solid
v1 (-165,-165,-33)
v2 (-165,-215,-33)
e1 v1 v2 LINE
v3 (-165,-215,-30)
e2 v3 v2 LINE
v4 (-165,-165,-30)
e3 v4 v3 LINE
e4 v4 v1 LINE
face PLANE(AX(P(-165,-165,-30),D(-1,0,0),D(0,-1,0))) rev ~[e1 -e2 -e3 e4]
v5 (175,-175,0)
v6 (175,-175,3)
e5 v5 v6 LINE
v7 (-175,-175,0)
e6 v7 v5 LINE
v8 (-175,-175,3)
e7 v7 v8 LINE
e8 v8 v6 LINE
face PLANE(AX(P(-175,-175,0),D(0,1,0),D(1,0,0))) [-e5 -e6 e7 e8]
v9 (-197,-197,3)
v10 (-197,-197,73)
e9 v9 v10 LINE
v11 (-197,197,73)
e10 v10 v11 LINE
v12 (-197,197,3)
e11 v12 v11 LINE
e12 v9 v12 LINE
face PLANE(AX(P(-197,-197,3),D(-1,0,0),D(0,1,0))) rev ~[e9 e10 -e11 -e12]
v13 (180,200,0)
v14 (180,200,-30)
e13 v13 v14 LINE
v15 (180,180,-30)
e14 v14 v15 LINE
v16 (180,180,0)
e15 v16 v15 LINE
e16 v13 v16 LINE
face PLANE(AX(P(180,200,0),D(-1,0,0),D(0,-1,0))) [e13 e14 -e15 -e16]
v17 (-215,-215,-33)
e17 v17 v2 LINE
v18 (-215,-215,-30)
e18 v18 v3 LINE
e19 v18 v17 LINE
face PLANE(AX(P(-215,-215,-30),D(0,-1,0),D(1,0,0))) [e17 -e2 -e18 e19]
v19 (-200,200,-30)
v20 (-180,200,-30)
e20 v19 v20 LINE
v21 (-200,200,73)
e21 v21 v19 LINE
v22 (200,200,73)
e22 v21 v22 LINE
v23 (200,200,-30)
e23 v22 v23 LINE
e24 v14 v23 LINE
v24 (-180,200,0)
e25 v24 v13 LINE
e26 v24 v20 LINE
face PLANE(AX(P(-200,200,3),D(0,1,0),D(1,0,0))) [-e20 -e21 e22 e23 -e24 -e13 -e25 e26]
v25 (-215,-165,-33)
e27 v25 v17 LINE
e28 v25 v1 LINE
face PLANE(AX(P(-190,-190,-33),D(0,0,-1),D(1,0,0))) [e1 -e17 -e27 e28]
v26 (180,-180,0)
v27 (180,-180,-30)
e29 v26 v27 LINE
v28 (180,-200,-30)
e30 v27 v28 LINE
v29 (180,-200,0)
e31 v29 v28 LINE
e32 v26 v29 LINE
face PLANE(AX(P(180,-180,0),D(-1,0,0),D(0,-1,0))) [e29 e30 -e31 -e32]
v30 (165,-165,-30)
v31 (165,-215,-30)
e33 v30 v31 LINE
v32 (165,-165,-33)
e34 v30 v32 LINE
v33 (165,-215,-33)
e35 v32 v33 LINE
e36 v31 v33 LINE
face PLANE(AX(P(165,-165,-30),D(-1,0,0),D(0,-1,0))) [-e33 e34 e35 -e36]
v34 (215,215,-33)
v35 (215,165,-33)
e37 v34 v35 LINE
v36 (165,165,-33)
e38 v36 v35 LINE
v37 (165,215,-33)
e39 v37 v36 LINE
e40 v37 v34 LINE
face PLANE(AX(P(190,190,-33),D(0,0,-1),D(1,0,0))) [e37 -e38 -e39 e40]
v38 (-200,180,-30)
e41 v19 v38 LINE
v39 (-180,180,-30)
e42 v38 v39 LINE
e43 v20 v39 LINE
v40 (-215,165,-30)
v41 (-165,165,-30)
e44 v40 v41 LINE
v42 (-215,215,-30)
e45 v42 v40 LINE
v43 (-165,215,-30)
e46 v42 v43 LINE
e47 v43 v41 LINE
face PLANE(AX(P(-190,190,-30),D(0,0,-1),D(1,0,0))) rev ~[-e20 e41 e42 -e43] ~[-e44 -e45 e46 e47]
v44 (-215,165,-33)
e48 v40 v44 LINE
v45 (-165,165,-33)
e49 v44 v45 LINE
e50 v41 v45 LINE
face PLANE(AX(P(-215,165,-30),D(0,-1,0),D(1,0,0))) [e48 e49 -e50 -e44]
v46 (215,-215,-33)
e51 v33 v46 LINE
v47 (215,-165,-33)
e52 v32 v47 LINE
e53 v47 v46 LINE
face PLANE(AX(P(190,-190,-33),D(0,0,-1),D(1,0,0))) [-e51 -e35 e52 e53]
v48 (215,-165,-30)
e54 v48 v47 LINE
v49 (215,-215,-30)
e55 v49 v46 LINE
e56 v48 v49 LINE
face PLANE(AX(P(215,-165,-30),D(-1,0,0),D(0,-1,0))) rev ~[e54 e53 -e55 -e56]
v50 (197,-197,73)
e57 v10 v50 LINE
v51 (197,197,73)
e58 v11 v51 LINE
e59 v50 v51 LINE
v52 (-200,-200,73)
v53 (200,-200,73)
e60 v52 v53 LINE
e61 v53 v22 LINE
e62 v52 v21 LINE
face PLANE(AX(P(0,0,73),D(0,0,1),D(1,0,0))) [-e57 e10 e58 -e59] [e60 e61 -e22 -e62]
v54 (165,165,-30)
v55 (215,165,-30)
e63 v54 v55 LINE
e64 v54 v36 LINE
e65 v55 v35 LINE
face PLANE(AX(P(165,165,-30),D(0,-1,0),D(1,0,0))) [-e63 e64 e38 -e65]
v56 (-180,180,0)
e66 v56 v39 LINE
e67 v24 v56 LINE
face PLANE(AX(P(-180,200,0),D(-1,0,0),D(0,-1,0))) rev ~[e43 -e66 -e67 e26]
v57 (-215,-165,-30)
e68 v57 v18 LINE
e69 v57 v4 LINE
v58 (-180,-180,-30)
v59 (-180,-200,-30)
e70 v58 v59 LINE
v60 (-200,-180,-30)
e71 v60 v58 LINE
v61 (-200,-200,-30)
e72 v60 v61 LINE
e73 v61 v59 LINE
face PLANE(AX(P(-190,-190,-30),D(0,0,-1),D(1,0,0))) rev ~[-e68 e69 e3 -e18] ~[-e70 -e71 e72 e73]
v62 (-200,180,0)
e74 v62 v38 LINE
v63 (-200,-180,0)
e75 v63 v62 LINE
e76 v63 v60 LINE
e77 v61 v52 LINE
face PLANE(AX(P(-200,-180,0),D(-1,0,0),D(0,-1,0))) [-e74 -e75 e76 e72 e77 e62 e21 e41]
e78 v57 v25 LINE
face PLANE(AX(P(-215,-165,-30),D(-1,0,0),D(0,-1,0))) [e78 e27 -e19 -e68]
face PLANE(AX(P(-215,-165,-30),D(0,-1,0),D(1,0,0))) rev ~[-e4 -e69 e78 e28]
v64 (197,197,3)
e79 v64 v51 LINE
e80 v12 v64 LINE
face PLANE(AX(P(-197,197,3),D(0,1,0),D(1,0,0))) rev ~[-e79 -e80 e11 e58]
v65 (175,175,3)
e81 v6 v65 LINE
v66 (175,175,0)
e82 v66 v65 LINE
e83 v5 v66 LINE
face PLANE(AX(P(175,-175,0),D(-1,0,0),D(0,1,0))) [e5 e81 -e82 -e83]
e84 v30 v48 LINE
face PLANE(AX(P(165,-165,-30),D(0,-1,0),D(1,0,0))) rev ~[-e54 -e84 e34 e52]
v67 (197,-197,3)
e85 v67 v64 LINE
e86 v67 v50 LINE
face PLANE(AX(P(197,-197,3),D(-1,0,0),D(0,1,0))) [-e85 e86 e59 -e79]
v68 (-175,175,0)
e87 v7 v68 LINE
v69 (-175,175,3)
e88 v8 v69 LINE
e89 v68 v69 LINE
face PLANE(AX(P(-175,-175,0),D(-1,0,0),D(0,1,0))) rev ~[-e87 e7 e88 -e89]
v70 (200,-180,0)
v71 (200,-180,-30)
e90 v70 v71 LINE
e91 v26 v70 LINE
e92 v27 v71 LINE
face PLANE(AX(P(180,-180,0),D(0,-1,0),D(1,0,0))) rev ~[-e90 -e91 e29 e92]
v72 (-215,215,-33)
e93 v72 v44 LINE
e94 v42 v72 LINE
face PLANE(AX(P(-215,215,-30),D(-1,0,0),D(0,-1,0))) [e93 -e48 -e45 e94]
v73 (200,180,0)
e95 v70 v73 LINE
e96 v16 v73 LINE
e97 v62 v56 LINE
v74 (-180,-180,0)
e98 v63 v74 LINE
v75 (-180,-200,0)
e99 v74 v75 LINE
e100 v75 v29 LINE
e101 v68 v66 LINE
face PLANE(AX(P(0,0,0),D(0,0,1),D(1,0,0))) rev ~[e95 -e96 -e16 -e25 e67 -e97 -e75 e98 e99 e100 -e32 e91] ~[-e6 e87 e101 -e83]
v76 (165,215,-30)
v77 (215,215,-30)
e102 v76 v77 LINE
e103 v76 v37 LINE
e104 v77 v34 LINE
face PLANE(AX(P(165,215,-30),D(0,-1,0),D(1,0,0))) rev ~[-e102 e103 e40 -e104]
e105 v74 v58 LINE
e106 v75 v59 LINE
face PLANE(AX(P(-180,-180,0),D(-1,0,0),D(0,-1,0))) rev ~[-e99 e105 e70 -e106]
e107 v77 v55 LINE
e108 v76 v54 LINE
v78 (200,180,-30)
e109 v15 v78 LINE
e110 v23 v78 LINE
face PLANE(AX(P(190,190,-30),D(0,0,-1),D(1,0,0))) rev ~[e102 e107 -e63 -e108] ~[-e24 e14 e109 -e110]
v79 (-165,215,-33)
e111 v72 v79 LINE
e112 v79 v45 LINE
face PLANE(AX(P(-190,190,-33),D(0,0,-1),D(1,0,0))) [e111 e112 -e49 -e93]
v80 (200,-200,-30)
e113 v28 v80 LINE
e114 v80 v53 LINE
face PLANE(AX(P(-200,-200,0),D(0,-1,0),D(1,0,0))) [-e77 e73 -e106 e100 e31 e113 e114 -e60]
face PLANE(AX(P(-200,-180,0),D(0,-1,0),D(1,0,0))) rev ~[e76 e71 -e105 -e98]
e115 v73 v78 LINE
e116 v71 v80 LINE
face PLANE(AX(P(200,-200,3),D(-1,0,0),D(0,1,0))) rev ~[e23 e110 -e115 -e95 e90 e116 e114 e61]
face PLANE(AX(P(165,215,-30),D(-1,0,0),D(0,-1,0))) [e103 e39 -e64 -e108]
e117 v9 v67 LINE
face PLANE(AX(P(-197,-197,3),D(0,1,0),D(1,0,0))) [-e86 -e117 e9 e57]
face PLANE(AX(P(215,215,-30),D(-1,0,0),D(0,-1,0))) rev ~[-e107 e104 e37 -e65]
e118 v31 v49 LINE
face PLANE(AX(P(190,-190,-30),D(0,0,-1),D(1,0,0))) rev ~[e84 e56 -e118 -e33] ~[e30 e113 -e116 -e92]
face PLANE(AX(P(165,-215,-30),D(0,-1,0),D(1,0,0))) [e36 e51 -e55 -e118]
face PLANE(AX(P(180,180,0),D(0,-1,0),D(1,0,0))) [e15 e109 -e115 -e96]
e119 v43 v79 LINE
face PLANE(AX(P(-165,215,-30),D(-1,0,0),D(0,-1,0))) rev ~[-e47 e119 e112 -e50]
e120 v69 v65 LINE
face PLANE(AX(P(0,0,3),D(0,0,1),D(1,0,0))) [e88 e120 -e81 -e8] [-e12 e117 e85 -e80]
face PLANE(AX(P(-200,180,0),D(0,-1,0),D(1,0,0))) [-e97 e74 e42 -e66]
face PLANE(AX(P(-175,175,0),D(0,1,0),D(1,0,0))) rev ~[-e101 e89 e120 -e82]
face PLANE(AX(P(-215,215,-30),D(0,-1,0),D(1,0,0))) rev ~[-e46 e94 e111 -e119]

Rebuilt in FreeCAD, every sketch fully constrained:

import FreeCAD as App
import Part
import Sketcher

doc = App.newDocument("Part")
body = doc.addObject("PartDesign::Body", "Body")

# Sketch on XY plane
sketch1 = body.newObject("Sketcher::SketchObject", "Sketch")
sketch1.AttachmentSupport = (doc.getObject("XY_Plane"), [""])
sketch1.MapMode = "FlatFace"
sketch1.addGeometry([
    Part.LineSegment(App.Vector(-200, 200, 0), App.Vector(-200, -200, 0)),  # 0
    Part.LineSegment(App.Vector(-200, -200, 0), App.Vector(200, -200, 0)),  # 1
    Part.LineSegment(App.Vector(200, -200, 0), App.Vector(200, 200, 0)),  # 2
    Part.LineSegment(App.Vector(200, 200, 0), App.Vector(-200, 200, 0)),  # 3
    Part.LineSegment(App.Vector(175, -175, 0), App.Vector(-175, -175, 0)),  # 4
    Part.LineSegment(App.Vector(-175, -175, 0), App.Vector(-175, 175, 0)),  # 5
    Part.LineSegment(App.Vector(-175, 175, 0), App.Vector(175, 175, 0)),  # 6
    Part.LineSegment(App.Vector(175, 175, 0), App.Vector(175, -175, 0)),  # 7
], False)
sketch1.addConstraint([
    Sketcher.Constraint("Coincident", 0, 2, 1, 1),
    Sketcher.Constraint("Coincident", 1, 2, 2, 1),
    Sketcher.Constraint("Coincident", 2, 2, 3, 1),
    Sketcher.Constraint("Coincident", 3, 2, 0, 1),
    Sketcher.Constraint("Coincident", 4, 2, 5, 1),
    Sketcher.Constraint("Coincident", 5, 2, 6, 1),
    Sketcher.Constraint("Coincident", 6, 2, 7, 1),
    Sketcher.Constraint("Coincident", 7, 2, 4, 1),
    Sketcher.Constraint("Vertical", 0),
    Sketcher.Constraint("Horizontal", 1),
    Sketcher.Constraint("Vertical", 2),
    Sketcher.Constraint("Horizontal", 3),
    Sketcher.Constraint("Horizontal", 4),
    Sketcher.Constraint("Vertical", 5),
    Sketcher.Constraint("Horizontal", 6),
    Sketcher.Constraint("Vertical", 7),
    Sketcher.Constraint("Symmetric", 0, 2, 2, 2, -1, 1),
    Sketcher.Constraint("Symmetric", 4, 2, 6, 2, -1, 1),
    Sketcher.Constraint("Equal", 3, 0),
    Sketcher.Constraint("Equal", 6, 5),
    Sketcher.Constraint("DistanceX", 1, 1, 1, 2, 400.0),
    Sketcher.Constraint("DistanceX", 4, 2, 4, 1, 350.0),
])
pad1 = body.newObject("PartDesign::Pad", "Pad")
pad1.Profile = sketch1
pad1.Length = 3

# Sketch on XY plane
sketch2 = body.newObject("Sketcher::SketchObject", "Sketch001")
sketch2.AttachmentSupport = (doc.getObject("XY_Plane"), [""])
sketch2.MapMode = "FlatFace"
sketch2.AttachmentOffset = App.Placement(App.Vector(0, 0, 3), App.Rotation())
sketch2.addGeometry([
    Part.LineSegment(App.Vector(-200, 200, 0), App.Vector(-200, -200, 0)),  # 0
    Part.LineSegment(App.Vector(-200, -200, 0), App.Vector(200, -200, 0)),  # 1
    Part.LineSegment(App.Vector(200, -200, 0), App.Vector(200, 200, 0)),  # 2
    Part.LineSegment(App.Vector(200, 200, 0), App.Vector(-200, 200, 0)),  # 3
    Part.LineSegment(App.Vector(197, -197, 0), App.Vector(-197, -197, 0)),  # 4
    Part.LineSegment(App.Vector(-197, -197, 0), App.Vector(-197, 197, 0)),  # 5
    Part.LineSegment(App.Vector(-197, 197, 0), App.Vector(197, 197, 0)),  # 6
    Part.LineSegment(App.Vector(197, 197, 0), App.Vector(197, -197, 0)),  # 7
], False)
sketch2.addConstraint([
    Sketcher.Constraint("Coincident", 0, 2, 1, 1),
    Sketcher.Constraint("Coincident", 1, 2, 2, 1),
    Sketcher.Constraint("Coincident", 2, 2, 3, 1),
    Sketcher.Constraint("Coincident", 3, 2, 0, 1),
    Sketcher.Constraint("Coincident", 4, 2, 5, 1),
    Sketcher.Constraint("Coincident", 5, 2, 6, 1),
    Sketcher.Constraint("Coincident", 6, 2, 7, 1),
    Sketcher.Constraint("Coincident", 7, 2, 4, 1),
    Sketcher.Constraint("Vertical", 0),
    Sketcher.Constraint("Horizontal", 1),
    Sketcher.Constraint("Vertical", 2),
    Sketcher.Constraint("Horizontal", 3),
    Sketcher.Constraint("Horizontal", 4),
    Sketcher.Constraint("Vertical", 5),
    Sketcher.Constraint("Horizontal", 6),
    Sketcher.Constraint("Vertical", 7),
    Sketcher.Constraint("Symmetric", 0, 2, 2, 2, -1, 1),
    Sketcher.Constraint("Symmetric", 4, 2, 6, 2, -1, 1),
    Sketcher.Constraint("Equal", 3, 0),
    Sketcher.Constraint("Equal", 6, 5),
    Sketcher.Constraint("DistanceX", 1, 1, 1, 2, 400.0),
    Sketcher.Constraint("DistanceX", 4, 2, 4, 1, 394.0),
])
pad2 = body.newObject("PartDesign::Pad", "Pad001")
pad2.Profile = sketch2
pad2.Length = 70

# Sketch on XY plane
sketch3 = body.newObject("Sketcher::SketchObject", "Sketch002")
sketch3.AttachmentSupport = (doc.getObject("XY_Plane"), [""])
sketch3.MapMode = "FlatFace"
sketch3.addGeometry([
    Part.LineSegment(App.Vector(-200, -200, 0), App.Vector(-200, -180, 0)),  # 0
    Part.LineSegment(App.Vector(-200, -180, 0), App.Vector(-180, -180, 0)),  # 1
    Part.LineSegment(App.Vector(-180, -180, 0), App.Vector(-180, -200, 0)),  # 2
    Part.LineSegment(App.Vector(-180, -200, 0), App.Vector(-200, -200, 0)),  # 3
    Part.LineSegment(App.Vector(180, -200, 0), App.Vector(180, -180, 0)),  # 4
    Part.LineSegment(App.Vector(180, -180, 0), App.Vector(200, -180, 0)),  # 5
    Part.LineSegment(App.Vector(200, -180, 0), App.Vector(200, -200, 0)),  # 6
    Part.LineSegment(App.Vector(200, -200, 0), App.Vector(180, -200, 0)),  # 7
    Part.LineSegment(App.Vector(-200, 180, 0), App.Vector(-200, 200, 0)),  # 8
    Part.LineSegment(App.Vector(-200, 200, 0), App.Vector(-180, 200, 0)),  # 9
    Part.LineSegment(App.Vector(-180, 200, 0), App.Vector(-180, 180, 0)),  # 10
    Part.LineSegment(App.Vector(-180, 180, 0), App.Vector(-200, 180, 0)),  # 11
    Part.LineSegment(App.Vector(180, 180, 0), App.Vector(180, 200, 0)),  # 12
    Part.LineSegment(App.Vector(180, 200, 0), App.Vector(200, 200, 0)),  # 13
    Part.LineSegment(App.Vector(200, 200, 0), App.Vector(200, 180, 0)),  # 14
    Part.LineSegment(App.Vector(200, 180, 0), App.Vector(180, 180, 0)),  # 15
], False)
sketch3.addConstraint([
    Sketcher.Constraint("Coincident", 0, 2, 1, 1),
    Sketcher.Constraint("Coincident", 1, 2, 2, 1),
    Sketcher.Constraint("Coincident", 2, 2, 3, 1),
    Sketcher.Constraint("Coincident", 3, 2, 0, 1),
    Sketcher.Constraint("Coincident", 4, 2, 5, 1),
    Sketcher.Constraint("Coincident", 5, 2, 6, 1),
    Sketcher.Constraint("Coincident", 6, 2, 7, 1),
    Sketcher.Constraint("Coincident", 7, 2, 4, 1),
    Sketcher.Constraint("Coincident", 8, 2, 9, 1),
    Sketcher.Constraint("Coincident", 9, 2, 10, 1),
    Sketcher.Constraint("Coincident", 10, 2, 11, 1),
    Sketcher.Constraint("Coincident", 11, 2, 8, 1),
    Sketcher.Constraint("Coincident", 12, 2, 13, 1),
    Sketcher.Constraint("Coincident", 13, 2, 14, 1),
    Sketcher.Constraint("Coincident", 14, 2, 15, 1),
    Sketcher.Constraint("Coincident", 15, 2, 12, 1),
    Sketcher.Constraint("Vertical", 0),
    Sketcher.Constraint("Horizontal", 1),
    Sketcher.Constraint("Vertical", 2),
    Sketcher.Constraint("Horizontal", 3),
    Sketcher.Constraint("Vertical", 4),
    Sketcher.Constraint("Horizontal", 5),
    Sketcher.Constraint("Vertical", 6),
    Sketcher.Constraint("Horizontal", 7),
    Sketcher.Constraint("Vertical", 8),
    Sketcher.Constraint("Horizontal", 9),
    Sketcher.Constraint("Vertical", 10),
    Sketcher.Constraint("Horizontal", 11),
    Sketcher.Constraint("Vertical", 12),
    Sketcher.Constraint("Horizontal", 13),
    Sketcher.Constraint("Vertical", 14),
    Sketcher.Constraint("Horizontal", 15),
    Sketcher.Constraint("Symmetric", 6, 2, 8, 2, -1, 1),
    Sketcher.Constraint("Symmetric", 4, 2, 10, 2, -1, 1),
    Sketcher.Constraint("Symmetric", 2, 2, 12, 2, -1, 1),
    Sketcher.Constraint("Symmetric", 0, 2, 14, 2, -1, 1),
    Sketcher.Constraint("Symmetric", 1, 2, 4, 2, -2),
    Sketcher.Constraint("Symmetric", 3, 2, 6, 2, -2),
    Sketcher.Constraint("Equal", 15, 0),
    Sketcher.Constraint("DistanceX", 1, 1, 1, 2, 20.0),
    Sketcher.Constraint("DistanceX", 0, 2, -1, 1, 200.0),
    Sketcher.Constraint("DistanceY", 0, 2, -1, 1, 180.0),
])
pad3 = body.newObject("PartDesign::Pad", "Pad002")
pad3.Profile = sketch3
pad3.Length = 30
pad3.Reversed = True

# Sketch on XY plane
sketch4 = body.newObject("Sketcher::SketchObject", "Sketch003")
sketch4.AttachmentSupport = (doc.getObject("XY_Plane"), [""])
sketch4.MapMode = "FlatFace"
sketch4.AttachmentOffset = App.Placement(App.Vector(0, 0, -30), App.Rotation())
sketch4.addGeometry([
    Part.LineSegment(App.Vector(-215, -215, 0), App.Vector(-215, -165, 0)),  # 0
    Part.LineSegment(App.Vector(-215, -165, 0), App.Vector(-165, -165, 0)),  # 1
    Part.LineSegment(App.Vector(-165, -165, 0), App.Vector(-165, -215, 0)),  # 2
    Part.LineSegment(App.Vector(-165, -215, 0), App.Vector(-215, -215, 0)),  # 3
    Part.LineSegment(App.Vector(165, -215, 0), App.Vector(165, -165, 0)),  # 4
    Part.LineSegment(App.Vector(165, -165, 0), App.Vector(215, -165, 0)),  # 5
    Part.LineSegment(App.Vector(215, -165, 0), App.Vector(215, -215, 0)),  # 6
    Part.LineSegment(App.Vector(215, -215, 0), App.Vector(165, -215, 0)),  # 7
    Part.LineSegment(App.Vector(165, 165, 0), App.Vector(165, 215, 0)),  # 8
    Part.LineSegment(App.Vector(165, 215, 0), App.Vector(215, 215, 0)),  # 9
    Part.LineSegment(App.Vector(215, 215, 0), App.Vector(215, 165, 0)),  # 10
    Part.LineSegment(App.Vector(215, 165, 0), App.Vector(165, 165, 0)),  # 11
    Part.LineSegment(App.Vector(-215, 165, 0), App.Vector(-215, 215, 0)),  # 12
    Part.LineSegment(App.Vector(-215, 215, 0), App.Vector(-165, 215, 0)),  # 13
    Part.LineSegment(App.Vector(-165, 215, 0), App.Vector(-165, 165, 0)),  # 14
    Part.LineSegment(App.Vector(-165, 165, 0), App.Vector(-215, 165, 0)),  # 15
], False)
sketch4.addConstraint([
    Sketcher.Constraint("Coincident", 0, 2, 1, 1),
    Sketcher.Constraint("Coincident", 1, 2, 2, 1),
    Sketcher.Constraint("Coincident", 2, 2, 3, 1),
    Sketcher.Constraint("Coincident", 3, 2, 0, 1),
    Sketcher.Constraint("Coincident", 4, 2, 5, 1),
    Sketcher.Constraint("Coincident", 5, 2, 6, 1),
    Sketcher.Constraint("Coincident", 6, 2, 7, 1),
    Sketcher.Constraint("Coincident", 7, 2, 4, 1),
    Sketcher.Constraint("Coincident", 8, 2, 9, 1),
    Sketcher.Constraint("Coincident", 9, 2, 10, 1),
    Sketcher.Constraint("Coincident", 10, 2, 11, 1),
    Sketcher.Constraint("Coincident", 11, 2, 8, 1),
    Sketcher.Constraint("Coincident", 12, 2, 13, 1),
    Sketcher.Constraint("Coincident", 13, 2, 14, 1),
    Sketcher.Constraint("Coincident", 14, 2, 15, 1),
    Sketcher.Constraint("Coincident", 15, 2, 12, 1),
    Sketcher.Constraint("Vertical", 0),
    Sketcher.Constraint("Horizontal", 1),
    Sketcher.Constraint("Vertical", 2),
    Sketcher.Constraint("Horizontal", 3),
    Sketcher.Constraint("Vertical", 4),
    Sketcher.Constraint("Horizontal", 5),
    Sketcher.Constraint("Vertical", 6),
    Sketcher.Constraint("Horizontal", 7),
    Sketcher.Constraint("Vertical", 8),
    Sketcher.Constraint("Horizontal", 9),
    Sketcher.Constraint("Vertical", 10),
    Sketcher.Constraint("Horizontal", 11),
    Sketcher.Constraint("Vertical", 12),
    Sketcher.Constraint("Horizontal", 13),
    Sketcher.Constraint("Vertical", 14),
    Sketcher.Constraint("Horizontal", 15),
    Sketcher.Constraint("Symmetric", 2, 2, 8, 2, -1, 1),
    Sketcher.Constraint("Symmetric", 0, 2, 10, 2, -1, 1),
    Sketcher.Constraint("Symmetric", 6, 2, 12, 2, -1, 1),
    Sketcher.Constraint("Symmetric", 4, 2, 14, 2, -1, 1),
    Sketcher.Constraint("Symmetric", 1, 2, 4, 2, -2),
    Sketcher.Constraint("Symmetric", 3, 2, 6, 2, -2),
    Sketcher.Constraint("Equal", 15, 0),
    Sketcher.Constraint("DistanceX", 1, 1, 1, 2, 50.0),
    Sketcher.Constraint("DistanceX", 0, 2, -1, 1, 215.0),
    Sketcher.Constraint("DistanceY", 0, 2, -1, 1, 165.0),
])
pad4 = body.newObject("PartDesign::Pad", "Pad003")
pad4.Profile = sketch4
pad4.Length = 3
pad4.Reversed = True

doc.recompute()
